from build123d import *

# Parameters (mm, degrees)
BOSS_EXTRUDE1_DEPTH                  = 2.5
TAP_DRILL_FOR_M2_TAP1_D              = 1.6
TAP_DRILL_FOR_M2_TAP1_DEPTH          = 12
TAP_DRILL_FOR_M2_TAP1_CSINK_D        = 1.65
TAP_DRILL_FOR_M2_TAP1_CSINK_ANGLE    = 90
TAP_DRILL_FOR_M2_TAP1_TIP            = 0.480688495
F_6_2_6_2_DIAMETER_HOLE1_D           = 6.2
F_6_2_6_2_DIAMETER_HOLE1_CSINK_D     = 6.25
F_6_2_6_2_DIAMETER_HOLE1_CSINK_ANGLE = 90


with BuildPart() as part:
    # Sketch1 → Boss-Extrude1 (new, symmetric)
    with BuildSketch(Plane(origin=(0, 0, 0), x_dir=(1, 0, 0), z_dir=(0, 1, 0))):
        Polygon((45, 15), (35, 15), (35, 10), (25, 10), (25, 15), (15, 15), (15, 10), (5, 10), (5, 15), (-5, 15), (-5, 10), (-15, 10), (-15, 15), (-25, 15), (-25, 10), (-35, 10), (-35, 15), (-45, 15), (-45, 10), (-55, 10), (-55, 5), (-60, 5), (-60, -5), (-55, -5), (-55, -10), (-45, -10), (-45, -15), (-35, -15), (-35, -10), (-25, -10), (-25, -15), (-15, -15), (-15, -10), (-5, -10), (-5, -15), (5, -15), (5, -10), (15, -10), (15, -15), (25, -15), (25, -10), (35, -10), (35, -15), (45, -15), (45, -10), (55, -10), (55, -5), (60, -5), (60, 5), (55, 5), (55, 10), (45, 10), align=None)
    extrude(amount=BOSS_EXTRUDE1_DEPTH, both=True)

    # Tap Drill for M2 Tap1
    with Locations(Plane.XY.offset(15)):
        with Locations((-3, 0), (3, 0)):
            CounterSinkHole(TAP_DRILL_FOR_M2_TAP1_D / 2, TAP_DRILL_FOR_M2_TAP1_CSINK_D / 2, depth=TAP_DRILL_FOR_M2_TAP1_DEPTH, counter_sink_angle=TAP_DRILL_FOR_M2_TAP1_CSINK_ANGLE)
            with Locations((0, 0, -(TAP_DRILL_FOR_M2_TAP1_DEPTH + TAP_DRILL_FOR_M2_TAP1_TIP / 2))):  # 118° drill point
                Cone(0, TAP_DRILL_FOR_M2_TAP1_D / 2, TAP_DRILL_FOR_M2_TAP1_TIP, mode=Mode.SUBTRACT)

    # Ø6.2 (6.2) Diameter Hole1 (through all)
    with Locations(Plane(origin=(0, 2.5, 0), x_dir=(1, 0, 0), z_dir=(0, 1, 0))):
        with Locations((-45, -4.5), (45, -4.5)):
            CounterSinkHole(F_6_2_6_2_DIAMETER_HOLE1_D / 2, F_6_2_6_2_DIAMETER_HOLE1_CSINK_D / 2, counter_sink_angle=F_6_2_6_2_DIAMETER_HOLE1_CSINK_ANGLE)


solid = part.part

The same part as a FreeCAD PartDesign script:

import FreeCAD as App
import Part
import Sketcher
Q = App.Units.Quantity


def add_polygon(sketch, points):
    """Adds a closed chain of lines whose ends are joined by coincident constraints."""
    first, n = sketch.GeometryCount, len(points)
    for a, b in zip(points, points[1:] + points[:1]):
        sketch.addGeometry(Part.LineSegment(App.Vector(*a, 0), App.Vector(*b, 0)), False)
    for i in range(n):
        sketch.addConstraint(Sketcher.Constraint("Coincident", first + i, 2, first + (i + 1) % n, 1))

doc = App.newDocument("Part")
body = doc.addObject("PartDesign::Body", "Body")

sketch1 = doc.addObject("Sketcher::SketchObject", "Sketch")
body.addObject(sketch1)
sketch1.AttachmentSupport = (doc.XZ_Plane, [""])
sketch1.MapMode = "FlatFace"
add_polygon(sketch1, [(45, -15), (35, -15), (35, -10), (25, -10), (25, -15), (15, -15), (15, -10), (5, -10), (5, -15), (-5, -15), (-5, -10), (-15, -10), (-15, -15), (-25, -15), (-25, -10), (-35, -10), (-35, -15), (-45, -15), (-45, -10), (-55, -10), (-55, -5), (-60, -5), (-60, 5), (-55, 5), (-55, 10), (-45, 10), (-45, 15), (-35, 15), (-35, 10), (-25, 10), (-25, 15), (-15, 15), (-15, 10), (-5, 10), (-5, 15), (5, 15), (5, 10), (15, 10), (15, 15), (25, 15), (25, 10), (35, 10), (35, 15), (45, 15), (45, 10), (55, 10), (55, 5), (60, 5), (60, -5), (55, -5), (55, -10), (45, -10)])
sketch1.addConstraint([
    Sketcher.Constraint("Horizontal", 0),
    Sketcher.Constraint("Vertical", 1),
    Sketcher.Constraint("Horizontal", 2),
    Sketcher.Constraint("Vertical", 3),
    Sketcher.Constraint("Horizontal", 4),
    Sketcher.Constraint("Vertical", 5),
    Sketcher.Constraint("Horizontal", 6),
    Sketcher.Constraint("Vertical", 7),
    Sketcher.Constraint("Horizontal", 8),
    Sketcher.Constraint("Vertical", 9),
    Sketcher.Constraint("Horizontal", 10),
    Sketcher.Constraint("Vertical", 11),
    Sketcher.Constraint("Horizontal", 12),
    Sketcher.Constraint("Vertical", 13),
    Sketcher.Constraint("Horizontal", 14),
    Sketcher.Constraint("Vertical", 15),
    Sketcher.Constraint("Horizontal", 16),
    Sketcher.Constraint("Vertical", 17),
    Sketcher.Constraint("Horizontal", 18),
    Sketcher.Constraint("Vertical", 19),
    Sketcher.Constraint("Horizontal", 20),
    Sketcher.Constraint("Vertical", 21),
    Sketcher.Constraint("Horizontal", 22),
    Sketcher.Constraint("Vertical", 23),
    Sketcher.Constraint("Horizontal", 24),
    Sketcher.Constraint("Vertical", 25),
    Sketcher.Constraint("Horizontal", 26),
    Sketcher.Constraint("Vertical", 27),
    Sketcher.Constraint("Horizontal", 28),
    Sketcher.Constraint("Vertical", 29),
    Sketcher.Constraint("Horizontal", 30),
    Sketcher.Constraint("Vertical", 31),
    Sketcher.Constraint("Horizontal", 32),
    Sketcher.Constraint("Vertical", 33),
    Sketcher.Constraint("Horizontal", 34),
    Sketcher.Constraint("Vertical", 35),
    Sketcher.Constraint("Horizontal", 36),
    Sketcher.Constraint("Vertical", 37),
    Sketcher.Constraint("Horizontal", 38),
    Sketcher.Constraint("Vertical", 39),
    Sketcher.Constraint("Horizontal", 40),
    Sketcher.Constraint("Vertical", 41),
    Sketcher.Constraint("Horizontal", 42),
    Sketcher.Constraint("Vertical", 43),
    Sketcher.Constraint("Horizontal", 44),
    Sketcher.Constraint("Vertical", 45),
    Sketcher.Constraint("Horizontal", 46),
    Sketcher.Constraint("Vertical", 47),
    Sketcher.Constraint("Horizontal", 48),
    Sketcher.Constraint("Vertical", 49),
    Sketcher.Constraint("Horizontal", 50),
    Sketcher.Constraint("Vertical", 51),
    Sketcher.Constraint("Symmetric", 0, 2, 26, 2, -1, 1),
    Sketcher.Constraint("Symmetric", 2, 2, 28, 2, -1, 1),
    Sketcher.Constraint("Symmetric", 4, 2, 30, 2, -1, 1),
    Sketcher.Constraint("Symmetric", 6, 2, 32, 2, -1, 1),
    Sketcher.Constraint("Symmetric", 8, 2, 34, 2, -1, 1),
    Sketcher.Constraint("Symmetric", 10, 2, 36, 2, -1, 1),
    Sketcher.Constraint("Symmetric", 12, 2, 38, 2, -1, 1),
    Sketcher.Constraint("Symmetric", 14, 2, 40, 2, -1, 1),
    Sketcher.Constraint("Symmetric", 16, 2, 42, 2, -1, 1),
    Sketcher.Constraint("Symmetric", 18, 2, 44, 2, -1, 1),
    Sketcher.Constraint("Symmetric", 20, 2, 46, 2, -1, 1),
    Sketcher.Constraint("Symmetric", 22, 2, 48, 2, -1, 1),
    Sketcher.Constraint("Symmetric", 24, 2, 50, 2, -1, 1),
    Sketcher.Constraint("Symmetric", 6, 2, 9, 2, -2),
    Sketcher.Constraint("Symmetric", 4, 2, 11, 2, -2),
    Sketcher.Constraint("Symmetric", 2, 2, 13, 2, -2),
    Sketcher.Constraint("Symmetric", 0, 2, 15, 2, -2),
    Sketcher.Constraint("Symmetric", 24, 2, 43, 2, -2),
    Sketcher.Constraint("Symmetric", 22, 2, 45, 2, -2),
    Sketcher.Constraint("Horizontal", 0, 2, 3, 2),
    Sketcher.Constraint("Horizontal", 2, 2, 5, 2),
    Sketcher.Constraint("Horizontal", 4, 2, 7, 2),
    Sketcher.Constraint("Horizontal", 14, 2, 17, 2),
    Sketcher.Constraint("Equal", 0, 2),
    Sketcher.Constraint("Equal", 2, 4),
    Sketcher.Constraint("Equal", 4, 6),
    Sketcher.Constraint("Equal", 6, 8),
    Sketcher.Constraint("Equal", 16, 18),
    Sketcher.Constraint("Equal", 48, 1),
    Sketcher.Constraint("Equal", 17, 19),
    Sketcher.Constraint("Equal", 50, 21),
    Sketcher.Constraint("DistanceX", 0, 2, 0, 1, Q("10 mm")),
    Sketcher.Constraint("DistanceX", 20, 2, 20, 1, Q("5 mm")),
])
pad1 = doc.addObject("PartDesign::Pad", "Pad")
body.addObject(pad1)
pad1.Profile = sketch1
pad1.Length = 5
pad1.Midplane = True

sketch2 = doc.addObject("Sketcher::SketchObject", "Sketch001")
body.addObject(sketch2)
sketch2.AttachmentSupport = (doc.XY_Plane, [""])
sketch2.MapMode = "FlatFace"
sketch2.AttachmentOffset = App.Placement(App.Vector(0, 0, 15), App.Rotation())
sketch2.addGeometry([
    Part.Circle(App.Vector(-3, 0, 0), App.Vector(0, 0, 1), 0.8),
    Part.Circle(App.Vector(3, 0, 0), App.Vector(0, 0, 1), 0.8),
], False)
sketch2.addConstraint([
    Sketcher.Constraint("Equal", 0, 1),
    Sketcher.Constraint("Symmetric", 0, 3, 1, 3, -1, 1),
    Sketcher.Constraint("PointOnObject", 0, 3, -1),
    Sketcher.Constraint("Diameter", 0, Q("1.6 mm")),
    Sketcher.Constraint("DistanceX", 0, 3, -1, 1, Q("3 mm")),
])
doc.recompute()
hole = doc.addObject("PartDesign::Hole", "Hole")
body.addObject(hole)
hole.Profile = sketch2
hole.ThreadType = "None"
hole.Diameter = 1.6
hole.DepthType = "Dimension"
hole.Depth = 12
hole.DrillPoint = "Angled"
hole.DrillPointAngle = 118
hole.HoleCutType = "Countersink"
hole.HoleCutDiameter = 1.65
hole.HoleCutCountersinkAngle = 90

sketch3 = doc.addObject("Sketcher::SketchObject", "Sketch002")
body.addObject(sketch3)
sketch3.AttachmentSupport = (doc.XZ_Plane, [""])
sketch3.MapMode = "FlatFace"
sketch3.AttachmentOffset = App.Placement(App.Vector(0, 0, -2.5), App.Rotation())
sketch3.addGeometry([
    Part.Circle(App.Vector(-45, 4.5, 0), App.Vector(0, 0, 1), 3.1),
    Part.Circle(App.Vector(45, 4.5, 0), App.Vector(0, 0, 1), 3.1),
], False)
sketch3.addConstraint([
    Sketcher.Constraint("Equal", 0, 1),
    Sketcher.Constraint("Symmetric", 0, 3, 1, 3, -2),
    Sketcher.Constraint("Diameter", 0, Q("6.2 mm")),
    Sketcher.Constraint("DistanceX", 0, 3, -1, 1, Q("45 mm")),
    Sketcher.Constraint("DistanceY", -1, 1, 0, 3, Q("4.5 mm")),
])
doc.recompute()
hole2 = doc.addObject("PartDesign::Hole", "Hole001")
body.addObject(hole2)
hole2.Profile = sketch3
hole2.ThreadType = "None"
hole2.Diameter = 6.2
hole2.DepthType = "ThroughAll"
hole2.HoleCutType = "Countersink"
hole2.HoleCutDiameter = 6.25
hole2.HoleCutCountersinkAngle = 90
hole2.Reversed = True

doc.recompute()
